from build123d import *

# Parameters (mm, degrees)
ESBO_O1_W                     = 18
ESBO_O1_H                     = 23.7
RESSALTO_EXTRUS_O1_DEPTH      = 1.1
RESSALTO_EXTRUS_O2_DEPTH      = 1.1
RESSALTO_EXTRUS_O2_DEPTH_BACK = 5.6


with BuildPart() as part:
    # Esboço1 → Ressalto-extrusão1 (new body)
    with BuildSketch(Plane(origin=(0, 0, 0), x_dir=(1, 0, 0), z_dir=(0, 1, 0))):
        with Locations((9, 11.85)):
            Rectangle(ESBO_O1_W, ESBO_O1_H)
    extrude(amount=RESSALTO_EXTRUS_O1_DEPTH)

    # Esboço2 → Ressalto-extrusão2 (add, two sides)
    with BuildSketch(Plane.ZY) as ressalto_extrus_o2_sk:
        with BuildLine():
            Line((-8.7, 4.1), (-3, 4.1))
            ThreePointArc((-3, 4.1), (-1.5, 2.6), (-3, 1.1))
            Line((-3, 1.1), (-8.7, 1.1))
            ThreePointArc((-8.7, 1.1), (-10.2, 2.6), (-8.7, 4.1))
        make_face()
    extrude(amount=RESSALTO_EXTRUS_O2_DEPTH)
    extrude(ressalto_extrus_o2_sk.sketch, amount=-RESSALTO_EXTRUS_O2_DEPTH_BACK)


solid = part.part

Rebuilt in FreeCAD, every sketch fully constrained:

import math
import FreeCAD as App
import Part
import Sketcher
Q = App.Units.Quantity

doc = App.newDocument("Part")
body = doc.addObject("PartDesign::Body", "Body")

sketch1 = doc.addObject("Sketcher::SketchObject", "Sketch")
body.addObject(sketch1)
sketch1.AttachmentSupport = (doc.XZ_Plane, [""])
sketch1.MapMode = "FlatFace"
sketch1.addGeometry(Part.LineSegment(App.Vector(0, -23.7, 0), App.Vector(0, 0, 0)), False)
sketch1.addGeometry(Part.LineSegment(App.Vector(0, 0, 0), App.Vector(18, 0, 0)), False)
sketch1.addGeometry(Part.LineSegment(App.Vector(18, 0, 0), App.Vector(18, -23.7, 0)), False)
sketch1.addGeometry(Part.LineSegment(App.Vector(18, -23.7, 0), App.Vector(0, -23.7, 0)), False)
sketch1.addConstraint(Sketcher.Constraint("Coincident", 0, 2, 1, 1))
sketch1.addConstraint(Sketcher.Constraint("Coincident", 1, 2, 2, 1))
sketch1.addConstraint(Sketcher.Constraint("Coincident", 2, 2, 3, 1))
sketch1.addConstraint(Sketcher.Constraint("Coincident", 3, 2, 0, 1))
sketch1.addConstraint(Sketcher.Constraint("Vertical", 0))
sketch1.addConstraint(Sketcher.Constraint("Horizontal", 1))
sketch1.addConstraint(Sketcher.Constraint("Vertical", 2))
sketch1.addConstraint(Sketcher.Constraint("Horizontal", 3))
sketch1.addConstraint(Sketcher.Constraint("Coincident", 0, 2, -1, 1))
sketch1.addConstraint(Sketcher.Constraint("DistanceX", 1, 1, 1, 2, Q("18 mm")))
sketch1.addConstraint(Sketcher.Constraint("DistanceY", 0, 1, 0, 2, Q("23.7 mm")))
pad1 = doc.addObject("PartDesign::Pad", "Pad")
body.addObject(pad1)
pad1.Profile = sketch1
pad1.Length = 1.1
pad1.Reversed = True

sketch2 = doc.addObject("Sketcher::SketchObject", "Sketch001")
body.addObject(sketch2)
sketch2.AttachmentSupport = (doc.YZ_Plane, [""])
sketch2.MapMode = "FlatFace"
sketch2.addGeometry(Part.LineSegment(App.Vector(4.1, -3, 0), App.Vector(4.1, -8.7, 0)), False)
sketch2.addGeometry(Part.ArcOfCircle(Part.Circle(App.Vector(2.6, -8.7, 0), App.Vector(0, 0, 1), 1.5), math.radians(180), math.radians(360)), False)
sketch2.addGeometry(Part.LineSegment(App.Vector(1.1, -8.7, 0), App.Vector(1.1, -3, 0)), False)
sketch2.addGeometry(Part.ArcOfCircle(Part.Circle(App.Vector(2.6, -3, 0), App.Vector(0, 0, 1), 1.5), math.radians(0), math.radians(180)), False)
sketch2.addConstraint(Sketcher.Constraint("Tangent", 0, 2, 1, 2))
sketch2.addConstraint(Sketcher.Constraint("Tangent", 1, 1, 2, 1))
sketch2.addConstraint(Sketcher.Constraint("Tangent", 2, 2, 3, 2))
sketch2.addConstraint(Sketcher.Constraint("Tangent", 3, 1, 0, 1))
sketch2.addConstraint(Sketcher.Constraint("Vertical", 0))
sketch2.addConstraint(Sketcher.Constraint("Vertical", 2))
sketch2.addConstraint(Sketcher.Constraint("Radius", 1, Q("1.5 mm")))
sketch2.addConstraint(Sketcher.Constraint("DistanceY", 0, 2, 0, 1, Q("5.7 mm")))
sketch2.addConstraint(Sketcher.Constraint("DistanceY", 3, 3, -1, 1, Q("3 mm")))
sketch2.addConstraint(Sketcher.Constraint("DistanceX", -1, 1, 1, 3, Q("2.6 mm")))
pad2 = doc.addObject("PartDesign::Pad", "Pad001")
body.addObject(pad2)
pad2.Profile = sketch2
pad2.Type = "TwoLengths"
pad2.Length = 1.1
pad2.Length2 = 5.6
pad2.Reversed = True

doc.recompute()
